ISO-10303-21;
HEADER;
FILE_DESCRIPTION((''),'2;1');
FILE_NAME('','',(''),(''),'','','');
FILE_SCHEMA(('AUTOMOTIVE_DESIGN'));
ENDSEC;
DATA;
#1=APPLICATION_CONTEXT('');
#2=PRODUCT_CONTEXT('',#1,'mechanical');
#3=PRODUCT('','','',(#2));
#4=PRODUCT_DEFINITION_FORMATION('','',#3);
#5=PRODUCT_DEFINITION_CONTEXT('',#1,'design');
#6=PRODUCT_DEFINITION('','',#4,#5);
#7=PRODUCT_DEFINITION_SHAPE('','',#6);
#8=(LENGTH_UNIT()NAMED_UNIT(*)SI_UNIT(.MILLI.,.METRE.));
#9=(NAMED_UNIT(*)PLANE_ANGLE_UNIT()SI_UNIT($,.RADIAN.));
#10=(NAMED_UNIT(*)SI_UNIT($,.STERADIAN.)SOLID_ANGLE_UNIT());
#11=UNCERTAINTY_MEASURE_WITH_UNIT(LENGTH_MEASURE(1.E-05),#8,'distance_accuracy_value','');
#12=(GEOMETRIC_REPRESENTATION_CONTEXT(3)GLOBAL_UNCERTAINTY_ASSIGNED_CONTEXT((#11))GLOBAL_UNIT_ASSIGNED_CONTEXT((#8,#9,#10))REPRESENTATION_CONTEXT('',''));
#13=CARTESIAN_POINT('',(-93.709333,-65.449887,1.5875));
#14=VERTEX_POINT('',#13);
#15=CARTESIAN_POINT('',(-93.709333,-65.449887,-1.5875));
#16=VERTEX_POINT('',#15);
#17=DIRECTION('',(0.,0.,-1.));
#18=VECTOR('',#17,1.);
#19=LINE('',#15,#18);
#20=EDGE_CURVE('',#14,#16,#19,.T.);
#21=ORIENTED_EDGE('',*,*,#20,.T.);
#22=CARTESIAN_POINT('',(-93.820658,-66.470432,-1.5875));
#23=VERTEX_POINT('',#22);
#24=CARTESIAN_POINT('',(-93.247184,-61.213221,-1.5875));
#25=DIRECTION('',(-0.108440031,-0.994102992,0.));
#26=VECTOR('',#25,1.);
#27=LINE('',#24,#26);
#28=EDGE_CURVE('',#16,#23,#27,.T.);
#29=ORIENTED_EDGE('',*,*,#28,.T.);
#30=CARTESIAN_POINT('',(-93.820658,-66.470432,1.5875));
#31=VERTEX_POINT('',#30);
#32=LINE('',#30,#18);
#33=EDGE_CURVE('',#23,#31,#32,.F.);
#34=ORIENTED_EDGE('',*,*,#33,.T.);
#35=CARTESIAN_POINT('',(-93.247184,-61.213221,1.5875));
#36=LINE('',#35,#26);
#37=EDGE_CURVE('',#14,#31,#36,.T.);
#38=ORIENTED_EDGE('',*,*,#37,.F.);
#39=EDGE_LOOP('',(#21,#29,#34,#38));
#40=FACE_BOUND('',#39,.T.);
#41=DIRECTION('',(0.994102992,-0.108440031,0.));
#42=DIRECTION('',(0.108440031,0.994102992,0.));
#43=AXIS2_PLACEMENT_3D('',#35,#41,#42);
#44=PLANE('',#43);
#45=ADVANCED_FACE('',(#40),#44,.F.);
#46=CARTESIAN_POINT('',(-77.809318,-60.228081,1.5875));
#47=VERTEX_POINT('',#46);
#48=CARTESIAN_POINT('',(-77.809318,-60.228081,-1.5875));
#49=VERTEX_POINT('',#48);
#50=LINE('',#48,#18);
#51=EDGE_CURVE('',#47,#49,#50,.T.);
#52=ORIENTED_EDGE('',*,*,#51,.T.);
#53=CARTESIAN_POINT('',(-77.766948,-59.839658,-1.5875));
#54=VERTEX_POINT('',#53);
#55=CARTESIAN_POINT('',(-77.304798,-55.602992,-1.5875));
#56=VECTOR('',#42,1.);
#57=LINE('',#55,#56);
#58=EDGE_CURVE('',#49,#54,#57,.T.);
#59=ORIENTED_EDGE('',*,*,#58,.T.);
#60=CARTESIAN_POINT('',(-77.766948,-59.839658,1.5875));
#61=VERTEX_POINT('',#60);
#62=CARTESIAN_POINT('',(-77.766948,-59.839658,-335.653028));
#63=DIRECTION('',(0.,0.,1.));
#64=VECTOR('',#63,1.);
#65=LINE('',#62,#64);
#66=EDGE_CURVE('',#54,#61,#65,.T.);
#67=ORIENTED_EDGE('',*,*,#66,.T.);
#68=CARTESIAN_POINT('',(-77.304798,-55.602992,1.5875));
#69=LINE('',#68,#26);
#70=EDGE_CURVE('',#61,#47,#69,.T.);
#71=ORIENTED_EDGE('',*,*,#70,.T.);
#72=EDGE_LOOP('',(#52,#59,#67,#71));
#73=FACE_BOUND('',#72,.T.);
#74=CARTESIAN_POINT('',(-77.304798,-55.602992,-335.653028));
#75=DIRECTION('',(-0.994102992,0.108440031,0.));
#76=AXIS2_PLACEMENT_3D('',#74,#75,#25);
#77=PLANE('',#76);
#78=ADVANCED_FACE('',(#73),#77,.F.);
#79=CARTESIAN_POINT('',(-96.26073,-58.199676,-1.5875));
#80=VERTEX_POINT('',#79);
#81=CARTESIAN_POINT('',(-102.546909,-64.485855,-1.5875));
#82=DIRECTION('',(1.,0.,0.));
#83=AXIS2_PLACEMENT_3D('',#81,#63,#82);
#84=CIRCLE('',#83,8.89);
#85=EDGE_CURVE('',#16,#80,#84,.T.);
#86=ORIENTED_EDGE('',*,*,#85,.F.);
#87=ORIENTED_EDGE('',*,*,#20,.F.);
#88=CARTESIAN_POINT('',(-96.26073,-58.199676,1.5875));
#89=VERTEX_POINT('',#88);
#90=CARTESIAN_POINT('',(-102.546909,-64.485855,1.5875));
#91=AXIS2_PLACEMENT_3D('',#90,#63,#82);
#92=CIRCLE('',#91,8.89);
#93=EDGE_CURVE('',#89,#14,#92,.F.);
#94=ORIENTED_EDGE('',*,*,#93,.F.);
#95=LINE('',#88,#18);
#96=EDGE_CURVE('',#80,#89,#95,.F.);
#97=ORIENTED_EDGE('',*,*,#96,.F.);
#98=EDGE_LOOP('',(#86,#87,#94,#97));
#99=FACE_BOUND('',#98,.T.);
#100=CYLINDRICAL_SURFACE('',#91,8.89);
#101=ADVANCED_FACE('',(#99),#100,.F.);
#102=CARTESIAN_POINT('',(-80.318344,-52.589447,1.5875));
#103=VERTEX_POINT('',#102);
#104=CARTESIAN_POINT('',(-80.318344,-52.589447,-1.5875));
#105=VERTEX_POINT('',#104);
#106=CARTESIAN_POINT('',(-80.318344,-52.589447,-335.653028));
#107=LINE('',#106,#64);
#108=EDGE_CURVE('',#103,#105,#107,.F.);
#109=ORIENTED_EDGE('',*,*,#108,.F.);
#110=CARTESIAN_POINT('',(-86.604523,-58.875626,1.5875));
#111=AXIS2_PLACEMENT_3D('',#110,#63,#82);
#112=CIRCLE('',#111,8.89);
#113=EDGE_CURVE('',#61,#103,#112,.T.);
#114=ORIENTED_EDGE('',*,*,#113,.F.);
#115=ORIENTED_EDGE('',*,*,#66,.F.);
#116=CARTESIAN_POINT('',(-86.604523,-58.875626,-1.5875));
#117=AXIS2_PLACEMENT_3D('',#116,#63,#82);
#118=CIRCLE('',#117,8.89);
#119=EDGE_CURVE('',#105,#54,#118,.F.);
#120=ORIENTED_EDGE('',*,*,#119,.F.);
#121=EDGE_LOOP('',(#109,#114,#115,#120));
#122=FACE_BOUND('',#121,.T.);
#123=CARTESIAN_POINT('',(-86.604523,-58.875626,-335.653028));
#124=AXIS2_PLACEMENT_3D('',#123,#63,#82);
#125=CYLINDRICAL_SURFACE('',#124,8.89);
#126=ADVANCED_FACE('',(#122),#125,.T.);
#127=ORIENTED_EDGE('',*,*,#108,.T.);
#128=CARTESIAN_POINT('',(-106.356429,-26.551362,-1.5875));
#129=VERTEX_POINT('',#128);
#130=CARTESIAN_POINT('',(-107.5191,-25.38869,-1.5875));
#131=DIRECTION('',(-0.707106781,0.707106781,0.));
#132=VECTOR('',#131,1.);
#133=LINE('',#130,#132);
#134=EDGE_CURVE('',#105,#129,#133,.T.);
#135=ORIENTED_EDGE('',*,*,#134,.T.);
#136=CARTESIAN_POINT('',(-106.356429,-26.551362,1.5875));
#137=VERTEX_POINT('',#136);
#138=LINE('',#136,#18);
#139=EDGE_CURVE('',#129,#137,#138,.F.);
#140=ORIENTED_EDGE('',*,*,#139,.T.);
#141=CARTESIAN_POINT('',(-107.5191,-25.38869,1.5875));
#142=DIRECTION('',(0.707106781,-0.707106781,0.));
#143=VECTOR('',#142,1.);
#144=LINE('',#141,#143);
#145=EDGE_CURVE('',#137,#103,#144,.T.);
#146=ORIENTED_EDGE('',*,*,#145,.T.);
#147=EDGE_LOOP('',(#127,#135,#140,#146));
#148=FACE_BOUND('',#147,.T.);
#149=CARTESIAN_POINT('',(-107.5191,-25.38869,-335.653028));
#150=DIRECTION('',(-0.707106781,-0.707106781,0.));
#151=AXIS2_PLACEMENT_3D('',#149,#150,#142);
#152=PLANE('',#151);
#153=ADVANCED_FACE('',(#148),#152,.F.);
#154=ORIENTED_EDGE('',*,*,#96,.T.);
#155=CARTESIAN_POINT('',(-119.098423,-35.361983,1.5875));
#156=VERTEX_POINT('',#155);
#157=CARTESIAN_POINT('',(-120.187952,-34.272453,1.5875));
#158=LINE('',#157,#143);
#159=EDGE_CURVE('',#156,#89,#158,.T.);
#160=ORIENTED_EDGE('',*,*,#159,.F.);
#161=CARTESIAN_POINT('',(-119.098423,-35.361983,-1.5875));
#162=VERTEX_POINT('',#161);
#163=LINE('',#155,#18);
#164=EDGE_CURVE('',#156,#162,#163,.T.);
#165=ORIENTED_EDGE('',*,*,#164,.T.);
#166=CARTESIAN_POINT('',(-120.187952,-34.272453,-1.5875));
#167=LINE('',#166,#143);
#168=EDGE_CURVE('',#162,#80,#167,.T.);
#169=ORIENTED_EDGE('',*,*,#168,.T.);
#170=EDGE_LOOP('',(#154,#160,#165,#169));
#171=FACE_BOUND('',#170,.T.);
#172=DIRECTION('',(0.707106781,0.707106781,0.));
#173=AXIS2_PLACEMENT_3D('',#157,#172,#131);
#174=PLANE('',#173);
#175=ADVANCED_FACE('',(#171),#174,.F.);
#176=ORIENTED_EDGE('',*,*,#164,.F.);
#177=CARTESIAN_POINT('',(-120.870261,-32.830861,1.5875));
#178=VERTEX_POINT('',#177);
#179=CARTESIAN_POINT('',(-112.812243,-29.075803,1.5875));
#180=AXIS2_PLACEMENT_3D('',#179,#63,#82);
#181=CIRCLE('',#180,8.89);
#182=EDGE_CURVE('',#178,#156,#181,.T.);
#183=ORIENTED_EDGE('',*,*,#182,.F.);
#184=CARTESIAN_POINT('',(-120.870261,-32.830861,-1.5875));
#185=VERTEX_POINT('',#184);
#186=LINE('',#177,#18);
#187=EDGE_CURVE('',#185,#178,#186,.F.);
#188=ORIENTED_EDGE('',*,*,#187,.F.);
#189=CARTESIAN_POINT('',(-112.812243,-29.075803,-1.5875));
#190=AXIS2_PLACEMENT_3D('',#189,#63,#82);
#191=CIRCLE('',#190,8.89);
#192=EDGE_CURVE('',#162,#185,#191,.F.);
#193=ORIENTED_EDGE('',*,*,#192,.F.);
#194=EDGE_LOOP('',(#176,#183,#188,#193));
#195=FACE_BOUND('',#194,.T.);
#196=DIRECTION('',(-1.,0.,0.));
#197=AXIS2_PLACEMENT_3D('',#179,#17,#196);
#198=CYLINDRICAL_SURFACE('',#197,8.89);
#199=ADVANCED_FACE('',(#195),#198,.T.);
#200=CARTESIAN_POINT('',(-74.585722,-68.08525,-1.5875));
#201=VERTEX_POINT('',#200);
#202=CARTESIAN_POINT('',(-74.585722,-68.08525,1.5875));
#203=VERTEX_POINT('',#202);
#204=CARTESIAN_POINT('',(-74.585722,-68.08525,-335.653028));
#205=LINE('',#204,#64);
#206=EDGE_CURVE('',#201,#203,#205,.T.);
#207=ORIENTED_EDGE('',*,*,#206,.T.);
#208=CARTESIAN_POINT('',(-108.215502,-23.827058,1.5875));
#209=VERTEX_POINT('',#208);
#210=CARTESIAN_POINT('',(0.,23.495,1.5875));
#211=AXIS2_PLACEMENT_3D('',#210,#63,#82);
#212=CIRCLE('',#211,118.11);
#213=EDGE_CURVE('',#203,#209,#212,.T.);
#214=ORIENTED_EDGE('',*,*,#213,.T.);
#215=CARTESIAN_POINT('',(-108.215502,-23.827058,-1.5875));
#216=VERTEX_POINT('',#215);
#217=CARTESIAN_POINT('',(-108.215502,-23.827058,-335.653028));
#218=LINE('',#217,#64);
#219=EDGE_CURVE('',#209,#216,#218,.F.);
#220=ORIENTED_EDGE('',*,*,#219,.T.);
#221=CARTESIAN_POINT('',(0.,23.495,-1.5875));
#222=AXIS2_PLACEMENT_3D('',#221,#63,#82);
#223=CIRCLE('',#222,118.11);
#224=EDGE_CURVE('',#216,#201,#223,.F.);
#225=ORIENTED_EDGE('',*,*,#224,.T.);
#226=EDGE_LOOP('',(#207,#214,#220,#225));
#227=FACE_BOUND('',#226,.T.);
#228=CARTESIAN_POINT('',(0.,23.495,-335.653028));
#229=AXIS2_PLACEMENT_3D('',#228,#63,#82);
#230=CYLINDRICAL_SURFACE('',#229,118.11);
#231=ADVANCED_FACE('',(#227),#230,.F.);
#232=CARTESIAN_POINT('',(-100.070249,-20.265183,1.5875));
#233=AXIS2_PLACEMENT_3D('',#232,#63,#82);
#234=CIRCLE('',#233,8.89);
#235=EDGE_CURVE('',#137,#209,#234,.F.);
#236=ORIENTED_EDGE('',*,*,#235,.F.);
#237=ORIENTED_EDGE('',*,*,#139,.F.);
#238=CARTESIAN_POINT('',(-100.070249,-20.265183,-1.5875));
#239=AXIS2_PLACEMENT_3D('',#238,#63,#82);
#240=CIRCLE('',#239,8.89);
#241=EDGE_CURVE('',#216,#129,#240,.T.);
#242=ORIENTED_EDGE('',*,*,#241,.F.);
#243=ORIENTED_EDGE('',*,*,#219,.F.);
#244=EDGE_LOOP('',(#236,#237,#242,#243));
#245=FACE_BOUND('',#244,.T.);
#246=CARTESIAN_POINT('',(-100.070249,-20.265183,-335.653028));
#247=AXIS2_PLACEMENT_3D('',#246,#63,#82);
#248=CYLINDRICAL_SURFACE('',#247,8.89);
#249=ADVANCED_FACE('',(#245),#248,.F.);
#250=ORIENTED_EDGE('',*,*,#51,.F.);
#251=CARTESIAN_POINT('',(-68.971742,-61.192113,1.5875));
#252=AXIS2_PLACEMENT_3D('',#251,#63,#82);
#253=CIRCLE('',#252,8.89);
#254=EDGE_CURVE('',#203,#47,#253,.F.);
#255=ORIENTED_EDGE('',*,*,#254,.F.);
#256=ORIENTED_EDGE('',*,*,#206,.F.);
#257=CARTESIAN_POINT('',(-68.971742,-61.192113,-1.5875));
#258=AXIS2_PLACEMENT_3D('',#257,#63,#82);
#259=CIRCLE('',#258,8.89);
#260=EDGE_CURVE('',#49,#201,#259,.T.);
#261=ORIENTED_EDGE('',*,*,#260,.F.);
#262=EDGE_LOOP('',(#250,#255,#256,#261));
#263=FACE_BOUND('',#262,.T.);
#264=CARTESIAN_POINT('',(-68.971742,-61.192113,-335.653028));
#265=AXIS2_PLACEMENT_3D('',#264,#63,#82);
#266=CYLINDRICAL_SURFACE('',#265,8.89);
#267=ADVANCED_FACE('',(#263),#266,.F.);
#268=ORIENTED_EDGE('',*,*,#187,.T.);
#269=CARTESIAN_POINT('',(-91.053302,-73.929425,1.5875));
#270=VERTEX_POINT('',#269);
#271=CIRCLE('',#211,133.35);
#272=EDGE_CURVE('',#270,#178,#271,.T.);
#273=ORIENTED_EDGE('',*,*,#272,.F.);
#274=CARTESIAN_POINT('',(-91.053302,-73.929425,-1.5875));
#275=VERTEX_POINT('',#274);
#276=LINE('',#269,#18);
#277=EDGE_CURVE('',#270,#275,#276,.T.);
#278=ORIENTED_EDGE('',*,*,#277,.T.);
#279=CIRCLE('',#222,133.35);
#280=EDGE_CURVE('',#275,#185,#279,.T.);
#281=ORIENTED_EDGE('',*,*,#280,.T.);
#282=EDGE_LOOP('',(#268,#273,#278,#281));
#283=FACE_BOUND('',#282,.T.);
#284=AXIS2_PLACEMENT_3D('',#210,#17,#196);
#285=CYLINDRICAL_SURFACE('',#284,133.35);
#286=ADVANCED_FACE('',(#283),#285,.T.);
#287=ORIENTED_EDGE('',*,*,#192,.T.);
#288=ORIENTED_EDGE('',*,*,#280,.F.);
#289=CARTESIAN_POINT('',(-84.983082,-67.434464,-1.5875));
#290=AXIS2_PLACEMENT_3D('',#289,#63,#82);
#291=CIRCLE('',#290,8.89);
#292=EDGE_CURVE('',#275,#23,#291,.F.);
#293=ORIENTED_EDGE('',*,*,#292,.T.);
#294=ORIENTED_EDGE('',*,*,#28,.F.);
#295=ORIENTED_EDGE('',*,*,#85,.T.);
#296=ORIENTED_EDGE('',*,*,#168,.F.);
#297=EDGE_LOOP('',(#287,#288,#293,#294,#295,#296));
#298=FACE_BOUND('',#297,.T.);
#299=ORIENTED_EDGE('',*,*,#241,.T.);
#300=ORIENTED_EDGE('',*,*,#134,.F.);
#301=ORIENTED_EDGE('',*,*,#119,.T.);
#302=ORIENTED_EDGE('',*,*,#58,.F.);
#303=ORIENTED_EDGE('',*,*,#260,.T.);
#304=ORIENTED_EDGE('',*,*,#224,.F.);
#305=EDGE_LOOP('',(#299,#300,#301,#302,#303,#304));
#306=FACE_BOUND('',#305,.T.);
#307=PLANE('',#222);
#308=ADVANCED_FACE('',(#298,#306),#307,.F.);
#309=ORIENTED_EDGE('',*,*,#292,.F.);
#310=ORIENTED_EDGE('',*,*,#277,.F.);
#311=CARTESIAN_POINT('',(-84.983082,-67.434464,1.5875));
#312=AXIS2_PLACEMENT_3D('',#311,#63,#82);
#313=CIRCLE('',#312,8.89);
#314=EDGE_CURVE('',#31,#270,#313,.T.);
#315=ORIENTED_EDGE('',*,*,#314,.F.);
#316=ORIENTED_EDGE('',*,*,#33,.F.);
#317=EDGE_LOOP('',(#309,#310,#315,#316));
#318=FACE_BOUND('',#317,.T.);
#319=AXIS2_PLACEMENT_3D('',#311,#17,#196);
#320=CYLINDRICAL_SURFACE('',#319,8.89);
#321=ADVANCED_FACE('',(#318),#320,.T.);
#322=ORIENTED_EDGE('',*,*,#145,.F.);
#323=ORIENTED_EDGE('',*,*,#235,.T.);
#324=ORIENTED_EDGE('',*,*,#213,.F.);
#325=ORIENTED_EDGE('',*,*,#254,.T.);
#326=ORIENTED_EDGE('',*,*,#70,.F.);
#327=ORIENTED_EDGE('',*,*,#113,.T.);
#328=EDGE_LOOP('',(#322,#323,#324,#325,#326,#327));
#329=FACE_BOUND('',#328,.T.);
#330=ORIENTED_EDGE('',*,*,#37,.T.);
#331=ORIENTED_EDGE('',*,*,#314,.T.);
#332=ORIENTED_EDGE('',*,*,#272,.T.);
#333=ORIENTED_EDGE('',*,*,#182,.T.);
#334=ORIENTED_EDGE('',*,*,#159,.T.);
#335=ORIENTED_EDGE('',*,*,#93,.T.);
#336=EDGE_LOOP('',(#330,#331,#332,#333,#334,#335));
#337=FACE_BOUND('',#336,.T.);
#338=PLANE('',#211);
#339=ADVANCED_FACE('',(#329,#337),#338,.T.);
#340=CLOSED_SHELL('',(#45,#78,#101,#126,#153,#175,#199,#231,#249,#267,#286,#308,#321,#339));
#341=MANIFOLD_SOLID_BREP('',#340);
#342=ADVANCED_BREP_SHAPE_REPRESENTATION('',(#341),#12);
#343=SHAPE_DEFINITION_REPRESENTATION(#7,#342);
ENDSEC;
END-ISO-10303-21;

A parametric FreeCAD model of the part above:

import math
import FreeCAD as App
import Part
import Sketcher
Q = App.Units.Quantity


def edges_at(feature, points):
    """Names of the edges that pass closest to the given points."""
    edges = feature.Shape.Edges
    near = lambda p: min(range(len(edges)), key=lambda i: edges[i].distToShape(Part.Vertex(*p))[0])
    return sorted({f"Edge{near(p) + 1}" for p in points})

doc = App.newDocument("Part")
body = doc.addObject("PartDesign::Body", "Body")

# Sketch on XY plane
sketch1 = body.newObject("Sketcher::SketchObject", "Sketch")
sketch1.AttachmentSupport = (doc.getObject("XY_Plane"), [""])
sketch1.MapMode = "FlatFace"
sketch1.addGeometry([
    Part.LineSegment(App.Vector(-120, -34, 0), App.Vector(-93, -61, 0)),
    Part.LineSegment(App.Vector(-93, -61, 0), App.Vector(-94, -71, 0)),
    Part.ArcOfCircle(Part.Circle(App.Vector(0, 23, 0), App.Vector(0, 0, 1), 133), math.radians(-135), math.radians(-115.67)),
    Part.ArcOfCircle(Part.Circle(App.Vector(0, 23, 0), App.Vector(0, 0, 1), 133), math.radians(-116), math.radians(206)),
], False)
sketch1.addConstraint([
    Sketcher.Constraint("Coincident", 0, 2, 1, 1),
    Sketcher.Constraint("Coincident", 1, 2, 2, 1),
    Sketcher.Constraint("Tangent", 2, 2, 3, 1),
    Sketcher.Constraint("Coincident", 3, 2, 0, 1),
    Sketcher.Constraint("Equal", 2, 3),
    Sketcher.Constraint("PointOnObject", 2, 3, -2),
    Sketcher.Constraint("Radius", 2, Q("5.25 in")),
    Sketcher.Constraint("Angle", 0, Q("-45 deg")),
    Sketcher.Constraint("Distance", 0, Q("1.5 in")),
    Sketcher.Constraint("DistanceY", -1, 1, 2, 3, Q("0.925 in")),
    Sketcher.Constraint("DistanceX", 3, 2, 2, 2, Q("2.4575 in")),
    Sketcher.Constraint("DistanceY", 2, 2, 3, 2, Q("2.4575 in")),
    Sketcher.Constraint("DistanceX", 1, 2, -1, 1, 94.292689),
])
pad1 = body.newObject("PartDesign::Pad", "Pad")
pad1.Profile = sketch1
pad1.Length = Q("0.125 in")
pad1.Midplane = True

# Sketch on XY plane
sketch2 = body.newObject("Sketcher::SketchObject", "Sketch001")
sketch2.AttachmentSupport = (doc.getObject("XY_Plane"), [""])
sketch2.MapMode = "FlatFace"
sketch2.AttachmentOffset = App.Placement(App.Vector(0, 0, 0.0625 * 25.4), App.Rotation())
sketch2.addGeometry([
    Part.LineSegment(App.Vector(-77, -56, 0), App.Vector(-78, -65, 0)),
    Part.ArcOfCircle(Part.Circle(App.Vector(0, 23, 0), App.Vector(0, 0, 1), 118), math.radians(-132), math.radians(204)),
    Part.LineSegment(App.Vector(-108, -25, 0), App.Vector(-77, -56, 0)),
], False)
sketch2.addConstraint([
    Sketcher.Constraint("Coincident", 0, 2, 1, 1),
    Sketcher.Constraint("Coincident", 1, 2, 2, 1),
    Sketcher.Constraint("Coincident", 2, 2, 0, 1),
    Sketcher.Constraint("PointOnObject", 1, 3, -2),
    Sketcher.Constraint("Radius", 1, Q("4.65 in")),
    Sketcher.Constraint("Angle", 2, Q("-45 deg")),
    Sketcher.Constraint("DistanceY", -1, 1, 1, 3, Q("0.925 in")),
    Sketcher.Constraint("DistanceX", 1, 2, -1, 1, 107.5191),
    Sketcher.Constraint("DistanceX", 2, 2, -1, 1, 77.304798),
    Sketcher.Constraint("Distance", 0, 9.36481),
])
pocket1 = body.newObject("PartDesign::Pocket", "Pocket")
pocket1.Profile = sketch2
pocket1.Length = Q("0.125 in")
doc.recompute()

fillet = body.newObject("PartDesign::Fillet", "Fillet")
fillet.Base = (pocket1, edges_at(pocket1, [
    (-77.305, -55.603, 0),
    (-107.519, -25.389, 0),
    (-78.32, -64.913, 0),
    (-93.247, -61.213, 0),
    (-120.188, -34.272, 0),
    (-94.293, -70.798, 0),
]))
fillet.Radius = Q("0.35 in")

doc.recompute()
